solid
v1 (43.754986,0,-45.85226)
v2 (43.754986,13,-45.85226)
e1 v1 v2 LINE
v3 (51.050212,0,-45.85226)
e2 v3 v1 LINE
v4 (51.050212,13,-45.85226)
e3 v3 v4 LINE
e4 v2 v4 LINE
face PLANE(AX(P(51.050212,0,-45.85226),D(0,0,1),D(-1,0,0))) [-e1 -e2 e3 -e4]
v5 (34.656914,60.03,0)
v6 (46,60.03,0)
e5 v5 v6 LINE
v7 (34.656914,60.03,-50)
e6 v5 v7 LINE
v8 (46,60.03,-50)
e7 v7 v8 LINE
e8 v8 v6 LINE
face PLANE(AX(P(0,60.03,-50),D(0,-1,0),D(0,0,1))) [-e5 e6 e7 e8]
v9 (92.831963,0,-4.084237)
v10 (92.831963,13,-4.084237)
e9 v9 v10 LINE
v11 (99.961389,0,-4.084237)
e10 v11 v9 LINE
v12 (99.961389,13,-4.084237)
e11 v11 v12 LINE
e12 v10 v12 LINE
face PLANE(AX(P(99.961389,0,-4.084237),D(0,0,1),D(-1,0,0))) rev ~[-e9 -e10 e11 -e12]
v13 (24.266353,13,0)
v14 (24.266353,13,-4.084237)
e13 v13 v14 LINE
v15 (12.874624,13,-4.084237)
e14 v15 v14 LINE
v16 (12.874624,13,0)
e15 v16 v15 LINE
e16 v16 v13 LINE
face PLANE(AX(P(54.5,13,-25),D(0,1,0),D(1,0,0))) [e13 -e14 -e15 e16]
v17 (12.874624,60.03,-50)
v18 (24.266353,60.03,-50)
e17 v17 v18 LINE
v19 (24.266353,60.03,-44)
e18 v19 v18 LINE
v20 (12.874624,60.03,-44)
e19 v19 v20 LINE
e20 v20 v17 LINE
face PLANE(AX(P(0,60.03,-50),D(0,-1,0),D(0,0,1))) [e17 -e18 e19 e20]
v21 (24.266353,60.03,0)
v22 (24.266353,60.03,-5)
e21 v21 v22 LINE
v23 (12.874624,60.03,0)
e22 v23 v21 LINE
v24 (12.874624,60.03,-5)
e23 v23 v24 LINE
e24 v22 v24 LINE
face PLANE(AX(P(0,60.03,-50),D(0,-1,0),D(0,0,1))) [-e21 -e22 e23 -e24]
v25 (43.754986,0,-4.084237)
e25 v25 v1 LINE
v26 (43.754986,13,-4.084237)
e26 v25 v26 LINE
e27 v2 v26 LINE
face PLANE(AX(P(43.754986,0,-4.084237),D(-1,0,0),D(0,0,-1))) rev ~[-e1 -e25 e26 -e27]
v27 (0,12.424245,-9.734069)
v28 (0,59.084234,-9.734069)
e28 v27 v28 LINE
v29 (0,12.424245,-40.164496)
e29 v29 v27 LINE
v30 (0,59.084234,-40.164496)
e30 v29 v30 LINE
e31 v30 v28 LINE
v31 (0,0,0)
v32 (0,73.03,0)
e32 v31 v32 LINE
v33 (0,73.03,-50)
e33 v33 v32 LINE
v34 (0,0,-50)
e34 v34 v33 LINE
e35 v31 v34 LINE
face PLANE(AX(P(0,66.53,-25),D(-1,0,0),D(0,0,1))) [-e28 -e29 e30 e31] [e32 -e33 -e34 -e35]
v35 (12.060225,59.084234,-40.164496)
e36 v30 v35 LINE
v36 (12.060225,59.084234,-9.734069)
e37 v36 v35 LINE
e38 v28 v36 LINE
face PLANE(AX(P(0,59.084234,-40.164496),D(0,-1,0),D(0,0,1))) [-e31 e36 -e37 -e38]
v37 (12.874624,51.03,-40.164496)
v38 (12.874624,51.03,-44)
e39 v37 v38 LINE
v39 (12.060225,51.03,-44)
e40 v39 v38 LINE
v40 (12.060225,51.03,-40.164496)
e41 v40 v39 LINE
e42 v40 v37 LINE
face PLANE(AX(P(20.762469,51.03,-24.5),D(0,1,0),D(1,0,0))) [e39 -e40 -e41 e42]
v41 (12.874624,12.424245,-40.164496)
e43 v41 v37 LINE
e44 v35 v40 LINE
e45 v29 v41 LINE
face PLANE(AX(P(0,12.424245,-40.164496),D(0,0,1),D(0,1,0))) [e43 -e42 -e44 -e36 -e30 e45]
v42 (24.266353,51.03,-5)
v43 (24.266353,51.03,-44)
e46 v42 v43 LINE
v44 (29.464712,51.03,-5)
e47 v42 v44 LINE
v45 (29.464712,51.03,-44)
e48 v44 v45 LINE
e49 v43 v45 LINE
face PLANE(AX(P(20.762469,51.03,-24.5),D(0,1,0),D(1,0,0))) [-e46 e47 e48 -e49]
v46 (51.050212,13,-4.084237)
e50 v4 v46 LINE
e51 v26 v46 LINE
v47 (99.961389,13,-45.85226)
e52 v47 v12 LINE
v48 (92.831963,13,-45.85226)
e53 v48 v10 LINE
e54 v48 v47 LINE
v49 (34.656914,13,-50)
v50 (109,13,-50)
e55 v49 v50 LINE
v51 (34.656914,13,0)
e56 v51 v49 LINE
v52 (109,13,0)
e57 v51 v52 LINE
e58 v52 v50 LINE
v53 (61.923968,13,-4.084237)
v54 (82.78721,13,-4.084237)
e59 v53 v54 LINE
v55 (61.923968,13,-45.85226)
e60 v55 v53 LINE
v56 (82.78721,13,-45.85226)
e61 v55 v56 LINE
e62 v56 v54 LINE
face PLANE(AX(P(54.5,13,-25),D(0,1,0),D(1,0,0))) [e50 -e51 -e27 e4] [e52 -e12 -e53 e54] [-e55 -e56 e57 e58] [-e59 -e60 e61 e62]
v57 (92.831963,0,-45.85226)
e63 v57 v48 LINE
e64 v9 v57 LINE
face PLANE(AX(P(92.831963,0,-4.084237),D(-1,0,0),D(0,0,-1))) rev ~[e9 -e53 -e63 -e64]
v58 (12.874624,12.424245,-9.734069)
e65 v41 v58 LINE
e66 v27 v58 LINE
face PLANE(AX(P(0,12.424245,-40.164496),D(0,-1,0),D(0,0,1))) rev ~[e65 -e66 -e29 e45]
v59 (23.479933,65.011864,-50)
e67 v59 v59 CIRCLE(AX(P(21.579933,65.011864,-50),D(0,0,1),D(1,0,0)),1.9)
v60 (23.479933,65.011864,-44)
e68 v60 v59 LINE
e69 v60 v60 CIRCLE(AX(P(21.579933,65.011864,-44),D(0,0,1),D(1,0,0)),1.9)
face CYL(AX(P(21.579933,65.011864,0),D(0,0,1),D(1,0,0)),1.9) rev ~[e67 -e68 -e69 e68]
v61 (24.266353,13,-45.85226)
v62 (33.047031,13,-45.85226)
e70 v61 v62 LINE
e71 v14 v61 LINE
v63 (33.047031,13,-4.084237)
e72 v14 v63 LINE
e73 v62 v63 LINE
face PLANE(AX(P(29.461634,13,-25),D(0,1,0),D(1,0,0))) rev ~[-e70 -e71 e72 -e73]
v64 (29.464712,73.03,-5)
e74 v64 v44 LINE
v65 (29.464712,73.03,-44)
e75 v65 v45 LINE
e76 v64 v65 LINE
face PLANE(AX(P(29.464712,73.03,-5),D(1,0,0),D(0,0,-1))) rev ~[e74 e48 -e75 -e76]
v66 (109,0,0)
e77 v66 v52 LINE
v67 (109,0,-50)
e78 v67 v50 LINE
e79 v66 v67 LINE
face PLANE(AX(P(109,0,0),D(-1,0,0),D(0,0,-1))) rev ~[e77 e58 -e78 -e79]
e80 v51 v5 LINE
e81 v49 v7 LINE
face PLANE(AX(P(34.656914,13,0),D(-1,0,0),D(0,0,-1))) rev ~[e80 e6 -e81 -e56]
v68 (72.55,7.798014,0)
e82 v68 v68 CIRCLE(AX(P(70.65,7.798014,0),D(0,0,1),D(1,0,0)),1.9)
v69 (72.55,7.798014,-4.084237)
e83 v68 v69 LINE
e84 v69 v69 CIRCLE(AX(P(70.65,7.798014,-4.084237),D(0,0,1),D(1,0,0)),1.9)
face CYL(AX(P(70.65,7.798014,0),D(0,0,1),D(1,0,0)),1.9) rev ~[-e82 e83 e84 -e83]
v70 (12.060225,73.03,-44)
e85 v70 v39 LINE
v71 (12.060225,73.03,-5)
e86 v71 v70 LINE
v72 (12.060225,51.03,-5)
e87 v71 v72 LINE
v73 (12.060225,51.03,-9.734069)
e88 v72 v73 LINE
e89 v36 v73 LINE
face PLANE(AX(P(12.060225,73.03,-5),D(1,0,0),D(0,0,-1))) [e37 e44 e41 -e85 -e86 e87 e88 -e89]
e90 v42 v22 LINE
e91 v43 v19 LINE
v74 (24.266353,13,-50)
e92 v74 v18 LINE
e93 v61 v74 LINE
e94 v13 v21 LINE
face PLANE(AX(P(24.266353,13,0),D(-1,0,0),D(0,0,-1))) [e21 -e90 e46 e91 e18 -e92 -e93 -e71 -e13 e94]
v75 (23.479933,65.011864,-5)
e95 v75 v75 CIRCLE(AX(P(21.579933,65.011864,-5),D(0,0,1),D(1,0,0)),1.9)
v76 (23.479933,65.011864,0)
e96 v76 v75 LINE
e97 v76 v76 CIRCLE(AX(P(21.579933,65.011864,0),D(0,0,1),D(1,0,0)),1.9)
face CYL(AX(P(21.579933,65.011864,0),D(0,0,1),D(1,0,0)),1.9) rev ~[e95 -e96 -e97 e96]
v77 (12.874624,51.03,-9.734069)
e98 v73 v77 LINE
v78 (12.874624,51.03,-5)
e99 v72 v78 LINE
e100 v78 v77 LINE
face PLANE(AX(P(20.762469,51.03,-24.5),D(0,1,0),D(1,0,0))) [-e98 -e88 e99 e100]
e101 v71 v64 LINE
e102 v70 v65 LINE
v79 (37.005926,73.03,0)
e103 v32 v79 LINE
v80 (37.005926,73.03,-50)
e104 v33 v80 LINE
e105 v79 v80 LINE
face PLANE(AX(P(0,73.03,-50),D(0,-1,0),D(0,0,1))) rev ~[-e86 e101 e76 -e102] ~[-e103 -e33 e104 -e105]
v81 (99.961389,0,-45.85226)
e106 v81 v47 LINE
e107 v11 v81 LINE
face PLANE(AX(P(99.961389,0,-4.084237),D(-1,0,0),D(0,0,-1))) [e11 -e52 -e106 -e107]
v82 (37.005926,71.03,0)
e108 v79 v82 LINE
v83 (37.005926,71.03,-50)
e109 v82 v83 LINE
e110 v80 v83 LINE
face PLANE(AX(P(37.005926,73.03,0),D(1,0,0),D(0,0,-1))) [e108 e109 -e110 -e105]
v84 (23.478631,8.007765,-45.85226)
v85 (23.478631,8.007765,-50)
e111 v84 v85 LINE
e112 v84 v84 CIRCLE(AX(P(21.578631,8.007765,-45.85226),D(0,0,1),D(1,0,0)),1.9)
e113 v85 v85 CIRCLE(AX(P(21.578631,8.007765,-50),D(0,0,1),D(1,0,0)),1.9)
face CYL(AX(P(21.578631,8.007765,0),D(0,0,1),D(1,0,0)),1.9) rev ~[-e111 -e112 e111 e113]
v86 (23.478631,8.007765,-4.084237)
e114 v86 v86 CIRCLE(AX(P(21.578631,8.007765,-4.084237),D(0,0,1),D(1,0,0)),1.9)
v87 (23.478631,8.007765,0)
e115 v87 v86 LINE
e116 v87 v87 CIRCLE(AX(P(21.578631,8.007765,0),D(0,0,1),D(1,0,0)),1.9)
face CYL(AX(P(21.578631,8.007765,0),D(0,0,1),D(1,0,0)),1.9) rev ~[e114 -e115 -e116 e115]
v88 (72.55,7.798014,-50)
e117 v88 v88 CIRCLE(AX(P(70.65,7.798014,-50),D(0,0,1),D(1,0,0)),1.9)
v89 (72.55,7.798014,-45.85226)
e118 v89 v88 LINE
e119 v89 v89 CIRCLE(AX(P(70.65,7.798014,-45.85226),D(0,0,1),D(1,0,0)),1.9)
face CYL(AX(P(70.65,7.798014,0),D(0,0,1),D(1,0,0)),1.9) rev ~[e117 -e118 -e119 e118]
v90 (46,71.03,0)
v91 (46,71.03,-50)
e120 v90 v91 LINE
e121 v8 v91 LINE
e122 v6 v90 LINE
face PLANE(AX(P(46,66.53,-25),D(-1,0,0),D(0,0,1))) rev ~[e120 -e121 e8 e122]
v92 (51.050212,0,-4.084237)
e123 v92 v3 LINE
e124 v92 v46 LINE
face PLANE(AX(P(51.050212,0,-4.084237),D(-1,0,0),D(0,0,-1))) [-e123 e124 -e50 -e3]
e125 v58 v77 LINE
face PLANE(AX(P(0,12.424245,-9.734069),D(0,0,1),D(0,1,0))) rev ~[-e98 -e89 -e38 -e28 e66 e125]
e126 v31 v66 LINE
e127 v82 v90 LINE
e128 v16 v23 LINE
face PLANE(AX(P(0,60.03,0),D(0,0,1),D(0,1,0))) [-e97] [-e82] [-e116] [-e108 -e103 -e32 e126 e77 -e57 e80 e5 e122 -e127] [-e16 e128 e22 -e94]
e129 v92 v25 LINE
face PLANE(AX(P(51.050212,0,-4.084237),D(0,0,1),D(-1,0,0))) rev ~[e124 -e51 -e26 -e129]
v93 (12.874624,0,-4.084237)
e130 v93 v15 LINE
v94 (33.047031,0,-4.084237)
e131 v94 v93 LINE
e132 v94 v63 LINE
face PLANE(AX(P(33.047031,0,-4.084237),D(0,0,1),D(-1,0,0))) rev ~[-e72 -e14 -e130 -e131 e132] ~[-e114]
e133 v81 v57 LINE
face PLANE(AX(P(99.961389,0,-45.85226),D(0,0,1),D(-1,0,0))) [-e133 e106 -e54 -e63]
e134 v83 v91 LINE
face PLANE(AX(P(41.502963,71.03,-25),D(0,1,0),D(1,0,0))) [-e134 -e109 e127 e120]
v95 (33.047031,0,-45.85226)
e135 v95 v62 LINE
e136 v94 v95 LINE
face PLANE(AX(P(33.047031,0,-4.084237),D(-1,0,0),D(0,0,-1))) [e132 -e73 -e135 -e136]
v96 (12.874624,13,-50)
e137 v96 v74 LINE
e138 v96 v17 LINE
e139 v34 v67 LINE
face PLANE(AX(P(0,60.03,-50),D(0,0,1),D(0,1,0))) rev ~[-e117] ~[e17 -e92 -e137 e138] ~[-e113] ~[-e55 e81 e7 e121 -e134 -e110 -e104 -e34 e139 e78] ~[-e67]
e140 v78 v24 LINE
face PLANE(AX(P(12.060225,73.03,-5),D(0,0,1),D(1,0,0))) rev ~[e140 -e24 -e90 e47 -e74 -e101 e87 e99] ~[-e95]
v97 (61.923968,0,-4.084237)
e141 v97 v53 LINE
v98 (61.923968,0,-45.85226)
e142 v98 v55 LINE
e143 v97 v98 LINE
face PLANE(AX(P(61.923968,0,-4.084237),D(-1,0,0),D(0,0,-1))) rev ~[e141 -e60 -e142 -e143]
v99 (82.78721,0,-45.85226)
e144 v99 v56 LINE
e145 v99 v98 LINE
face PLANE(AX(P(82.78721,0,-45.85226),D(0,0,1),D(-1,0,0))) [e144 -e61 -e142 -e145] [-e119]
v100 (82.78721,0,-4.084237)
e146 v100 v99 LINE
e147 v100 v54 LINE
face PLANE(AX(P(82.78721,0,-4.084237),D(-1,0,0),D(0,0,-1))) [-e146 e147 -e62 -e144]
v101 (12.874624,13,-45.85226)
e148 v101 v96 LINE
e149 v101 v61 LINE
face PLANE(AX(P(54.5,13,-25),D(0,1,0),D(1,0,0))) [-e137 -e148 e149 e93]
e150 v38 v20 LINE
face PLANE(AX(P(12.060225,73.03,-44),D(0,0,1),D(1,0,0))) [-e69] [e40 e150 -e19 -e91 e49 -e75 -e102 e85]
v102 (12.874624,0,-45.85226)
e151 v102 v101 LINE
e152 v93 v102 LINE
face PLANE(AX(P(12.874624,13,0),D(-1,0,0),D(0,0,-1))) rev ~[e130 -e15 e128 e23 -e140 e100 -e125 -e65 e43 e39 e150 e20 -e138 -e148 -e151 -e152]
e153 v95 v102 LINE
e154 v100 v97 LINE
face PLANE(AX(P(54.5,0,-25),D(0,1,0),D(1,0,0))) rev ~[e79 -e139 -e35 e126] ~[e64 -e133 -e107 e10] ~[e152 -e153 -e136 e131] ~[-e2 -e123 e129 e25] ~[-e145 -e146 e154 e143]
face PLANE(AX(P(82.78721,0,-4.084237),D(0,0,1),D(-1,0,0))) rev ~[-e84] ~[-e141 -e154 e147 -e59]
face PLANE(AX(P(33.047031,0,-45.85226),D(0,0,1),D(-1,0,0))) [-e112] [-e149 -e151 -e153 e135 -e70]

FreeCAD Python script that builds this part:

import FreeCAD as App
import Part
import Sketcher
from FreeCAD import Vector
Q = App.Units.Quantity


def add_polygon(sketch, points):
    """Adds a closed chain of lines whose ends are joined by coincident constraints."""
    first, n = sketch.GeometryCount, len(points)
    for a, b in zip(points, points[1:] + points[:1]):
        sketch.addGeometry(Part.LineSegment(App.Vector(*a, 0), App.Vector(*b, 0)), False)
    for i in range(n):
        sketch.addConstraint(Sketcher.Constraint("Coincident", first + i, 2, first + (i + 1) % n, 1))

doc = App.newDocument("Part")
body = doc.addObject("PartDesign::Body", "Body")

# Sketch on XZ plane
sketch1 = body.newObject("Sketcher::SketchObject", "Sketch")
sketch1.AttachmentSupport = (doc.getObject("XZ_Plane"), [""])
sketch1.MapMode = "FlatFace"
add_polygon(sketch1, [(0, -50), (0, 0), (109, 0), (109, -50)])  # lines 0-3
sketch1.addConstraint([
    Sketcher.Constraint("Vertical", 0),
    Sketcher.Constraint("Horizontal", 1),
    Sketcher.Constraint("Vertical", 2),
    Sketcher.Constraint("Horizontal", 3),
    Sketcher.Constraint("Coincident", 0, 2, -1, 1),
    Sketcher.Constraint("DistanceX", 1, 1, 1, 2, Q("109 mm")),
    Sketcher.Constraint("DistanceY", 0, 1, 0, 2, Q("50 mm")),
])
pad1 = body.newObject("PartDesign::Pad", "Pad")
pad1.Profile = sketch1
pad1.Length = 13
pad1.Reversed = True

# Sketch on XZ plane
sketch2 = body.newObject("Sketcher::SketchObject", "Sketch001")
sketch2.AttachmentSupport = (doc.getObject("XZ_Plane"), [""])
sketch2.MapMode = "FlatFace"
add_polygon(sketch2, [(33.047031, -45.85226), (33.047031, -4.084237), (12.874624, -4.084237), (12.874624, -45.85226)])  # lines 0-3
add_polygon(sketch2, [(82.78721, -45.85226), (82.78721, -4.084237), (61.923968, -4.084237), (61.923968, -45.85226)])  # lines 4-7
add_polygon(sketch2, [(51.050212, -45.85226), (51.050212, -4.084237), (43.754986, -4.084237), (43.754986, -45.85226)])  # lines 8-11
add_polygon(sketch2, [(99.961389, -45.85226), (99.961389, -4.084237), (92.831963, -4.084237), (92.831963, -45.85226)])  # lines 12-15
sketch2.addConstraint([
    Sketcher.Constraint("Vertical", 0),
    Sketcher.Constraint("Horizontal", 1),
    Sketcher.Constraint("Vertical", 2),
    Sketcher.Constraint("Horizontal", 3),
    Sketcher.Constraint("Vertical", 4),
    Sketcher.Constraint("Horizontal", 5),
    Sketcher.Constraint("Vertical", 6),
    Sketcher.Constraint("Horizontal", 7),
    Sketcher.Constraint("Vertical", 8),
    Sketcher.Constraint("Horizontal", 9),
    Sketcher.Constraint("Vertical", 10),
    Sketcher.Constraint("Horizontal", 11),
    Sketcher.Constraint("Vertical", 12),
    Sketcher.Constraint("Horizontal", 13),
    Sketcher.Constraint("Vertical", 14),
    Sketcher.Constraint("Horizontal", 15),
    Sketcher.Constraint("Horizontal", 1, 2, 4, 2),
    Sketcher.Constraint("Horizontal", 3, 2, 6, 2),
    Sketcher.Constraint("Horizontal", 5, 2, 8, 2),
    Sketcher.Constraint("Horizontal", 7, 2, 10, 2),
    Sketcher.Constraint("Horizontal", 9, 2, 12, 2),
    Sketcher.Constraint("Horizontal", 11, 2, 14, 2),
    Sketcher.Constraint("DistanceX", 8, 2, 4, 2, Q("31.736998 mm")),
    Sketcher.Constraint("DistanceX", 1, 2, 1, 1, Q("20.172406 mm")),
    Sketcher.Constraint("DistanceX", 5, 2, 5, 1, Q("20.863242 mm")),
    Sketcher.Constraint("DistanceX", 9, 2, 9, 1, Q("7.295226 mm")),
    Sketcher.Constraint("DistanceX", 13, 2, 13, 1, Q("7.129426 mm")),
    Sketcher.Constraint("DistanceY", 0, 1, 0, 2, Q("41.768023 mm")),
    Sketcher.Constraint("DistanceX", -1, 1, 0, 2, Q("33.047031 mm")),
    Sketcher.Constraint("DistanceY", 2, 2, -1, 1, Q("45.85226 mm")),
    Sketcher.Constraint("DistanceX", -1, 1, 4, 2, Q("82.78721 mm")),
    Sketcher.Constraint("DistanceX", -1, 1, 12, 2, Q("99.961389 mm")),
])
pocket1 = body.newObject("PartDesign::Pocket", "Pocket")
pocket1.Profile = sketch2
pocket1.Length = 16

# Sketch on XZ plane
sketch3 = body.newObject("Sketcher::SketchObject", "Sketch002")
sketch3.AttachmentSupport = (doc.getObject("XZ_Plane"), [""])
sketch3.MapMode = "FlatFace"
sketch3.AttachmentOffset = App.Placement(Vector(0, 0, -13), App.Rotation())
add_polygon(sketch3, [(0, -50), (0, 0), (12.874624, 0), (12.874624, -50)])  # lines 0-3
add_polygon(sketch3, [(24.266353, -50), (24.266353, 0), (34.656914, 0), (34.656914, -50)])  # lines 4-7
sketch3.addConstraint([
    Sketcher.Constraint("Vertical", 0),
    Sketcher.Constraint("Horizontal", 1),
    Sketcher.Constraint("Vertical", 2),
    Sketcher.Constraint("Horizontal", 3),
    Sketcher.Constraint("Vertical", 4),
    Sketcher.Constraint("Horizontal", 5),
    Sketcher.Constraint("Vertical", 6),
    Sketcher.Constraint("Horizontal", 7),
    Sketcher.Constraint("Coincident", 0, 2, -1, 1),
    Sketcher.Constraint("PointOnObject", 4, 2, -1),
    Sketcher.Constraint("Horizontal", 3, 2, 6, 2),
    Sketcher.Constraint("DistanceY", 0, 1, 0, 2, Q("50 mm")),
    Sketcher.Constraint("DistanceX", 5, 1, 5, 2, Q("10.390562 mm")),
    Sketcher.Constraint("DistanceX", 1, 1, 1, 2, Q("12.874624 mm")),
    Sketcher.Constraint("DistanceX", 1, 2, 4, 2, Q("11.391728 mm")),
])
pad2 = body.newObject("PartDesign::Pad", "Pad001")
pad2.Profile = sketch3
pad2.Length = 47.03
pad2.Reversed = True

# Sketch on YZ plane
sketch4 = body.newObject("Sketcher::SketchObject", "Sketch003")
sketch4.AttachmentSupport = (doc.getObject("YZ_Plane"), [""])
sketch4.MapMode = "FlatFace"
add_polygon(sketch4, [(73.03, -50), (60.03, -50), (60.03, 0), (73.03, 0)])  # lines 0-3
sketch4.addConstraint([
    Sketcher.Constraint("Horizontal", 0),
    Sketcher.Constraint("Vertical", 1),
    Sketcher.Constraint("Horizontal", 2),
    Sketcher.Constraint("Vertical", 3),
    Sketcher.Constraint("PointOnObject", 1, 2, -1),
    Sketcher.Constraint("DistanceX", 0, 2, 0, 1, Q("13 mm")),
    Sketcher.Constraint("DistanceY", 1, 1, 1, 2, Q("50 mm")),
    Sketcher.Constraint("DistanceX", -1, 1, 0, 2, Q("60.03 mm")),
])
pad3 = body.newObject("PartDesign::Pad", "Pad002")
pad3.Profile = sketch4
pad3.Length = 46

# Sketch on XZ plane
sketch5 = body.newObject("Sketcher::SketchObject", "Sketch004")
sketch5.AttachmentSupport = (doc.getObject("XZ_Plane"), [""])
sketch5.MapMode = "FlatFace"
sketch5.AttachmentOffset = App.Placement(Vector(0, 0, -73.03), App.Rotation())
add_polygon(sketch5, [(37.005926, -50), (37.005926, 0), (46, 0), (46, -50)])  # lines 0-3
sketch5.addConstraint([
    Sketcher.Constraint("Vertical", 0),
    Sketcher.Constraint("Horizontal", 1),
    Sketcher.Constraint("Vertical", 2),
    Sketcher.Constraint("Horizontal", 3),
    Sketcher.Constraint("PointOnObject", 0, 2, -1),
    Sketcher.Constraint("DistanceY", 0, 1, 0, 2, Q("50 mm")),
    Sketcher.Constraint("DistanceX", -1, 1, 1, 2, Q("46 mm")),
    Sketcher.Constraint("DistanceX", 1, 1, 1, 2, Q("8.994074 mm")),
])
pocket2 = body.newObject("PartDesign::Pocket", "Pocket001")
pocket2.Profile = sketch5
pocket2.Length = 2
pocket2.Reversed = True

# Sketch on XZ plane
sketch6 = body.newObject("Sketcher::SketchObject", "Sketch005")
sketch6.AttachmentSupport = (doc.getObject("XZ_Plane"), [""])
sketch6.MapMode = "FlatFace"
sketch6.AttachmentOffset = App.Placement(Vector(0, 0, -73.03), App.Rotation())
add_polygon(sketch6, [(12.060225, -44), (12.060225, -5), (29.464712, -5), (29.464712, -44)])  # lines 0-3
sketch6.addConstraint([
    Sketcher.Constraint("Vertical", 0),
    Sketcher.Constraint("Horizontal", 1),
    Sketcher.Constraint("Vertical", 2),
    Sketcher.Constraint("Horizontal", 3),
    Sketcher.Constraint("DistanceY", 0, 1, 0, 2, Q("39 mm")),
    Sketcher.Constraint("DistanceY", 0, 2, -1, 1, Q("5 mm")),
    Sketcher.Constraint("DistanceX", 1, 1, 1, 2, Q("17.404487 mm")),
    Sketcher.Constraint("DistanceX", -1, 1, 1, 2, Q("29.464712 mm")),
])
pocket3 = body.newObject("PartDesign::Pocket", "Pocket002")
pocket3.Profile = sketch6
pocket3.Length = 22
pocket3.Reversed = True

# Sketch on YZ plane
sketch7 = body.newObject("Sketcher::SketchObject", "Sketch006")
sketch7.AttachmentSupport = (doc.getObject("YZ_Plane"), [""])
sketch7.MapMode = "FlatFace"
add_polygon(sketch7, [(59.084234, -40.164496), (12.424245, -40.164496), (12.424245, -9.734069), (59.084234, -9.734069)])  # lines 0-3
sketch7.addConstraint([
    Sketcher.Constraint("Horizontal", 0),
    Sketcher.Constraint("Vertical", 1),
    Sketcher.Constraint("Horizontal", 2),
    Sketcher.Constraint("Vertical", 3),
    Sketcher.Constraint("DistanceX", 0, 2, 0, 1, Q("46.659988 mm")),
    Sketcher.Constraint("DistanceY", 1, 1, 1, 2, Q("30.430427 mm")),
    Sketcher.Constraint("DistanceY", 1, 2, -1, 1, Q("9.734069 mm")),
    Sketcher.Constraint("DistanceX", -1, 1, 0, 2, Q("12.424245 mm")),
])
pocket4 = body.newObject("PartDesign::Pocket", "Pocket003")
pocket4.Profile = sketch7
pocket4.Length = 22
pocket4.Reversed = True

# Sketch on XY plane
sketch8 = body.newObject("Sketcher::SketchObject", "Sketch007")
sketch8.AttachmentSupport = (doc.getObject("XY_Plane"), [""])
sketch8.MapMode = "FlatFace"
sketch8.addGeometry([
    Part.Circle(Vector(21.579933, 65.011864, 0), Vector(0, 0, 1), 1.9),
    Part.Circle(Vector(21.578631, 8.007765, 0), Vector(0, 0, 1), 1.9),
    Part.Circle(Vector(70.65, 7.798014, 0), Vector(0, 0, 1), 1.9),
], False)
sketch8.addConstraint([
    Sketcher.Constraint("Equal", 0, 1),
    Sketcher.Constraint("Equal", 1, 2),
    Sketcher.Constraint("Diameter", 0, Q("3.8 mm")),
    Sketcher.Constraint("DistanceX", -1, 1, 2, 3, Q("70.65 mm")),
    Sketcher.Constraint("DistanceY", 1, 3, 0, 3, Q("57.004099 mm")),
    Sketcher.Constraint("DistanceX", -1, 1, 1, 3, Q("21.578631 mm")),
    Sketcher.Constraint("DistanceY", 2, 3, 1, 3, Q("0.20975 mm")),
    Sketcher.Constraint("DistanceX", -1, 1, 0, 3, Q("21.579933 mm")),
    Sketcher.Constraint("DistanceY", -1, 1, 0, 3, Q("65.011864 mm")),
])
pocket5 = body.newObject("PartDesign::Pocket", "Pocket004")
pocket5.Profile = sketch8
pocket5.Length = 60

doc.recompute()
